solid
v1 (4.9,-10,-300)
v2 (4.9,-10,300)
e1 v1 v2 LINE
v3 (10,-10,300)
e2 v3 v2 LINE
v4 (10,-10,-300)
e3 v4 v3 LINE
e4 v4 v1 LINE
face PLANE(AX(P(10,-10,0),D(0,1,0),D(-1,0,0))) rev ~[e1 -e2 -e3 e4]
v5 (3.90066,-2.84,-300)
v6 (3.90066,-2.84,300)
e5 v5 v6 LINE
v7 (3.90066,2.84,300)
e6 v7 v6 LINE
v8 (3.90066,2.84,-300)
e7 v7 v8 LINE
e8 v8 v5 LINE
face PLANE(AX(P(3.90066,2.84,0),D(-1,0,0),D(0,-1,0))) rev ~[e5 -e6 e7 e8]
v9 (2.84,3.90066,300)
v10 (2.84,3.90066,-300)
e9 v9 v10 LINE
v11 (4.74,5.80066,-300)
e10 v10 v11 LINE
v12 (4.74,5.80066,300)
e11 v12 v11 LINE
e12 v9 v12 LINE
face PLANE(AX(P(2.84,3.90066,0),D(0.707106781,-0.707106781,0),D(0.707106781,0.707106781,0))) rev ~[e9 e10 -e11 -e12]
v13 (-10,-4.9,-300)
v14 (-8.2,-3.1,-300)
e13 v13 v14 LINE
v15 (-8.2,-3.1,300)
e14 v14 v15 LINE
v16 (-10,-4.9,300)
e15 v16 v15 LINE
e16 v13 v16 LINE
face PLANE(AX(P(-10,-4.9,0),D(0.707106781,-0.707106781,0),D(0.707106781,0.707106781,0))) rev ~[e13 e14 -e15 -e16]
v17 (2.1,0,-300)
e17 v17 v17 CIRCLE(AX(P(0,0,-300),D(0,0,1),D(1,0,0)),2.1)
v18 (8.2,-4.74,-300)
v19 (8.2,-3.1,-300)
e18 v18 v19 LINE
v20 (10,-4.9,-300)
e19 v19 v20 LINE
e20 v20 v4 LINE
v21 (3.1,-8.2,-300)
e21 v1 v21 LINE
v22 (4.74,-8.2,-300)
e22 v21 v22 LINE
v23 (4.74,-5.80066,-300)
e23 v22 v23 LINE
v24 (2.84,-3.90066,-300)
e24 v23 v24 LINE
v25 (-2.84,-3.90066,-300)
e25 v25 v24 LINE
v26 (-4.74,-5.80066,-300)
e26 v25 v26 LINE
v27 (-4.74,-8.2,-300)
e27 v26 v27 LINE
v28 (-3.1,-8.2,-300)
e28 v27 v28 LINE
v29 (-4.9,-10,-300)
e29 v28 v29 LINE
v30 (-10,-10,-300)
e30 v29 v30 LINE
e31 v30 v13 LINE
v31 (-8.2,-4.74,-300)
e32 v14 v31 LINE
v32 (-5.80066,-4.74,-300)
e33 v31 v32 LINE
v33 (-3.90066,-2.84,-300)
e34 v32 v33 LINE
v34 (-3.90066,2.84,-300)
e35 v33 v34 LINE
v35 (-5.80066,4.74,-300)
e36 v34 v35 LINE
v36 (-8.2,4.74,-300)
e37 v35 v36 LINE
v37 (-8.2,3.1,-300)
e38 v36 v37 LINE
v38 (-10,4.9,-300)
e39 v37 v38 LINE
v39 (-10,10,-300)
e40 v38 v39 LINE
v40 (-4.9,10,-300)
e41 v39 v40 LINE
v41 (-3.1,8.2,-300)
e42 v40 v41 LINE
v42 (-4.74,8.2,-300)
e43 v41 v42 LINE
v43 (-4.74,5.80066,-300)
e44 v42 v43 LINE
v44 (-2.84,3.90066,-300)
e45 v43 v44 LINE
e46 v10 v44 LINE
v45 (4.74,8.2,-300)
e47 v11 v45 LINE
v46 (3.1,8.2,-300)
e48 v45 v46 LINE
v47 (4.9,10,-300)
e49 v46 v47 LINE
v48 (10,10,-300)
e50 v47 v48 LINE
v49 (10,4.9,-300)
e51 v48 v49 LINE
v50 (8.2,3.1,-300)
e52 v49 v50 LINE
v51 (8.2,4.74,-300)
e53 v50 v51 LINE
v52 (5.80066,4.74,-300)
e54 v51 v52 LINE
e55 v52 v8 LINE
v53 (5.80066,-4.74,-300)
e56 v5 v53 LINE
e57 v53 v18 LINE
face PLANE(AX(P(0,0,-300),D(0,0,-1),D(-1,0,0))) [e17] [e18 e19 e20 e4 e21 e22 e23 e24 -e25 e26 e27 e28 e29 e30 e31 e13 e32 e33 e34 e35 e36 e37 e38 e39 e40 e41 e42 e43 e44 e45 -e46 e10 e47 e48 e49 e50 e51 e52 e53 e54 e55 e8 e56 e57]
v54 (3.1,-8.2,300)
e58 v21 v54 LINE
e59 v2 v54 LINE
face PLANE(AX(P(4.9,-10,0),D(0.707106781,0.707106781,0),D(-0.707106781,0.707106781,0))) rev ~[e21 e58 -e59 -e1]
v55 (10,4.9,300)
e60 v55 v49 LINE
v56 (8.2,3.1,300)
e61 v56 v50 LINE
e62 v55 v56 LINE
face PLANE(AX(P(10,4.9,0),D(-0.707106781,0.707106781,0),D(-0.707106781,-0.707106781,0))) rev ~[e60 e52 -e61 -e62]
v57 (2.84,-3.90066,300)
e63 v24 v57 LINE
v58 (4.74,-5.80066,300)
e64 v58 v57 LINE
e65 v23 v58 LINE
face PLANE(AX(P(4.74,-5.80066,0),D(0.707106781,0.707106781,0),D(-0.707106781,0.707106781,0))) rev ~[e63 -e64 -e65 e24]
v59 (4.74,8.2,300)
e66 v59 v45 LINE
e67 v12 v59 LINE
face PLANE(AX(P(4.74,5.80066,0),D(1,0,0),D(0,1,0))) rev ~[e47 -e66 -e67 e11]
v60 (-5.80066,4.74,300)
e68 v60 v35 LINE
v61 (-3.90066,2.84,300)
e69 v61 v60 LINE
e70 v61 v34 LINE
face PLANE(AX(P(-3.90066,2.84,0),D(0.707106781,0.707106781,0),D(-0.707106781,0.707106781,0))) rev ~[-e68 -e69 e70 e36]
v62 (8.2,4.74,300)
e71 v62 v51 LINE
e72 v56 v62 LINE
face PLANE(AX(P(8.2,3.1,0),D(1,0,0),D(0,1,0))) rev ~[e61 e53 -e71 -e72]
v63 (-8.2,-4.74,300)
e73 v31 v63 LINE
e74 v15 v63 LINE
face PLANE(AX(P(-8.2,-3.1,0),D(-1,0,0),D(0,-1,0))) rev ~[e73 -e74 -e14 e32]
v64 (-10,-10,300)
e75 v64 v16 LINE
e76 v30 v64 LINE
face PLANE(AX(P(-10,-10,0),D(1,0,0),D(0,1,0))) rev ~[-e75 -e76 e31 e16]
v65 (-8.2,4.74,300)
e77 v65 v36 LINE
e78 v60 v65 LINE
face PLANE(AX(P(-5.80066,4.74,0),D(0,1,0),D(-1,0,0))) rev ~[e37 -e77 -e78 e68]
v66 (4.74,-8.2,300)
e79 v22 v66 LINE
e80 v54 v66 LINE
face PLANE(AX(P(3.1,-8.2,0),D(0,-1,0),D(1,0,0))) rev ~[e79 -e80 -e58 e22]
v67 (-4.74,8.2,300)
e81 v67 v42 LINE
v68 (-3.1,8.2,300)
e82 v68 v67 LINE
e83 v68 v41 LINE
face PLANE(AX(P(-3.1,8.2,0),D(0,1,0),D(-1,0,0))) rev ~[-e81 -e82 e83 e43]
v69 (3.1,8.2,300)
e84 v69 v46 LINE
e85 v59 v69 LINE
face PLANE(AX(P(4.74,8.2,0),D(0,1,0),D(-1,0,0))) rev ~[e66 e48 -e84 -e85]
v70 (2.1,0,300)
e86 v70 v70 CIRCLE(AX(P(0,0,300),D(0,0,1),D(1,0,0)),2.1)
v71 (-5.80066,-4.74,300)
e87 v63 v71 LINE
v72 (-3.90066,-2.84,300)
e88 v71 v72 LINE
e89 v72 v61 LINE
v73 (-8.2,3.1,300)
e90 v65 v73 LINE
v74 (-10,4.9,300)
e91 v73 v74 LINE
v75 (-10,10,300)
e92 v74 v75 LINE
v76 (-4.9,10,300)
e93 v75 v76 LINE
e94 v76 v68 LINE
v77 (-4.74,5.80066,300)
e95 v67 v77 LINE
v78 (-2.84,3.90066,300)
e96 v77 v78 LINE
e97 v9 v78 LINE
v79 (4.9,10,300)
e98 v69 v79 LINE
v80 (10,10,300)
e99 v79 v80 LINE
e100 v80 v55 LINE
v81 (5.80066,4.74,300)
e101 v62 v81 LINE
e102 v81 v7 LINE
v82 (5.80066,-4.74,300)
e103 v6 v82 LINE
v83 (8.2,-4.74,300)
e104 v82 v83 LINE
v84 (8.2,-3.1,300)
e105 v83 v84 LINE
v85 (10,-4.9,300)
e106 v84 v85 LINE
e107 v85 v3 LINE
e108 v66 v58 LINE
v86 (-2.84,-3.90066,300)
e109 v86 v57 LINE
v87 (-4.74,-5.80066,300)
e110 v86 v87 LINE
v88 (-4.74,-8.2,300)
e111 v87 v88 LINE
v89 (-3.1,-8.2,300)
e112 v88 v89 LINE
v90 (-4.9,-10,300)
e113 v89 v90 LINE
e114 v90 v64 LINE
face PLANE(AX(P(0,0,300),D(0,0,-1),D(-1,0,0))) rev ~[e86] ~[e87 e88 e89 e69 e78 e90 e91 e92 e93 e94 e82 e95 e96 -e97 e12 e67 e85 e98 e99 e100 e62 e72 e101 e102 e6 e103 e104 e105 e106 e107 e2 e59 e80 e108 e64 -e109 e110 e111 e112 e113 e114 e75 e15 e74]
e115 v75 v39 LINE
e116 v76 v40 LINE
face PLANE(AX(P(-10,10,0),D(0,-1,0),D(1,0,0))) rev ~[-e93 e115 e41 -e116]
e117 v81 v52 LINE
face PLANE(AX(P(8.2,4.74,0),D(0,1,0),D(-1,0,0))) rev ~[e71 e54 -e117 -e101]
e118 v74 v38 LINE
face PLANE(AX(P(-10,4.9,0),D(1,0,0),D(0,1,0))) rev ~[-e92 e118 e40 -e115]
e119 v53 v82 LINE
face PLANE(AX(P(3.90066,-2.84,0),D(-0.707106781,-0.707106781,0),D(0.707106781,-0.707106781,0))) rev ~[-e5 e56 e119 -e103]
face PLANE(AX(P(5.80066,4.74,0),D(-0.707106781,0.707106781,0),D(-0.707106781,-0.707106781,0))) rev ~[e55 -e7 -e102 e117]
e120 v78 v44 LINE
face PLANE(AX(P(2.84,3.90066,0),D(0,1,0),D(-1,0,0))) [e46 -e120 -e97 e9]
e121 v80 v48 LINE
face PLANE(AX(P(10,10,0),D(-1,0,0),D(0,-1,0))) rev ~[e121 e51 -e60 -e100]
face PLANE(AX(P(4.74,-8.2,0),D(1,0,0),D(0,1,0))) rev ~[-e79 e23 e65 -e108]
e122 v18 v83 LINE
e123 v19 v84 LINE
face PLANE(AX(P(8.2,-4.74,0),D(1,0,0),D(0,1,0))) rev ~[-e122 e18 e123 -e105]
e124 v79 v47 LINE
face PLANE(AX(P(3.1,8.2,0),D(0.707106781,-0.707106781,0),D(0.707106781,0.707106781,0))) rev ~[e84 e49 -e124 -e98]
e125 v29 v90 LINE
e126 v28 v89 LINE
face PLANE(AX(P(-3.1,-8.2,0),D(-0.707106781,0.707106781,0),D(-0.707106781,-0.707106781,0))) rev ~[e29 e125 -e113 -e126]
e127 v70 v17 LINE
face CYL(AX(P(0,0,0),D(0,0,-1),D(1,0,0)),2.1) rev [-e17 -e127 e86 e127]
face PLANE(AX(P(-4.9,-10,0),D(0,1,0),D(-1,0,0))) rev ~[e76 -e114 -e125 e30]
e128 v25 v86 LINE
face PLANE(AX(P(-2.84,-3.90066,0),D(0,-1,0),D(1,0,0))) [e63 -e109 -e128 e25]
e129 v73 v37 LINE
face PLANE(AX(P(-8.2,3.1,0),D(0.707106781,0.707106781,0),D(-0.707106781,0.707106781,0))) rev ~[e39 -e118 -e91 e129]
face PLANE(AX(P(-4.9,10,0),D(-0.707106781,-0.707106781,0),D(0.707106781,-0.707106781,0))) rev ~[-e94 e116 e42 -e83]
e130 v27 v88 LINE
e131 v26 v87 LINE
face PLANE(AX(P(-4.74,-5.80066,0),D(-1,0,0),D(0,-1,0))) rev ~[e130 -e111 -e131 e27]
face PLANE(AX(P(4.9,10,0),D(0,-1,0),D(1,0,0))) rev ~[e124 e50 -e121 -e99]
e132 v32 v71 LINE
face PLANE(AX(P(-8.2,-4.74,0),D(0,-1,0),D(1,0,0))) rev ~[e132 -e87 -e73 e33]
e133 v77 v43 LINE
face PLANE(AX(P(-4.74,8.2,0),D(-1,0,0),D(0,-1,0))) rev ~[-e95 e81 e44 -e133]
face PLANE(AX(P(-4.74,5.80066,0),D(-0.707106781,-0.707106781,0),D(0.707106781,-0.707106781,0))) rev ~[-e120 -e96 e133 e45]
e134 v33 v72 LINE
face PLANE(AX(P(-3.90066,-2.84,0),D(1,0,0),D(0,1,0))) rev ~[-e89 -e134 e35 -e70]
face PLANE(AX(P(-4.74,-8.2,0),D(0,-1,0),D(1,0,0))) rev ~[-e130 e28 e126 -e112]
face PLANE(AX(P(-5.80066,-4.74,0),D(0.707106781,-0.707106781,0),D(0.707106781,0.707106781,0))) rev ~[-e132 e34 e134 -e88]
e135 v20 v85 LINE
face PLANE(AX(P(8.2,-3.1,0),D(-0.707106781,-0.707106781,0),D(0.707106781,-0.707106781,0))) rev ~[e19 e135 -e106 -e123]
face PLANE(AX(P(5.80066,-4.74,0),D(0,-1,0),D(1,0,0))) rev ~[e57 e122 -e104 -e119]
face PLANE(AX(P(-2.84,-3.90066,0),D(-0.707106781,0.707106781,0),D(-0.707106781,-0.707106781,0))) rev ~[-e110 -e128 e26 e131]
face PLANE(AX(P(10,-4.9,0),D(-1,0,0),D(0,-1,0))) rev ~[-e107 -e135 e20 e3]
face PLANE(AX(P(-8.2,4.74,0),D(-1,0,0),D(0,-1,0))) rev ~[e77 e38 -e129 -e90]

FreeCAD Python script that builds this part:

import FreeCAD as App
import Part
import Sketcher
from FreeCAD import Vector
Q = App.Units.Quantity


def add_polygon(sketch, points):
    """Adds a closed chain of lines whose ends are joined by coincident constraints."""
    first, n = sketch.GeometryCount, len(points)
    for a, b in zip(points, points[1:] + points[:1]):
        sketch.addGeometry(Part.LineSegment(App.Vector(*a, 0), App.Vector(*b, 0)), False)
    for i in range(n):
        sketch.addConstraint(Sketcher.Constraint("Coincident", first + i, 2, first + (i + 1) % n, 1))

doc = App.newDocument("Part")
body = doc.addObject("PartDesign::Body", "Body")

sketch1 = doc.addObject("Sketcher::SketchObject", "Sketch")
body.addObject(sketch1)
sketch1.AttachmentSupport = (doc.XY_Plane, [""])
sketch1.MapMode = "FlatFace"
add_polygon(sketch1, [(-3.9, 2.8), (-3.9, -2.8), (-5.8, -4.7), (-8.2, -4.7), (-8.2, -3.1), (-10, -4.9), (-10, -10), (-4.9, -10), (-3.1, -8.2), (-4.7, -8.2), (-4.7, -5.8), (-2.8, -3.9), (2.8, -3.9), (4.7, -5.8), (4.7, -8.2), (3.1, -8.2), (4.9, -10), (10, -10), (10, -4.9), (8.2, -3.1), (8.2, -4.7), (5.8, -4.7), (3.9, -2.8), (3.9, 2.8), (5.8, 4.7), (8.2, 4.7), (8.2, 3.1), (10, 4.9), (10, 10), (4.9, 10), (3.1, 8.2), (4.7, 8.2), (4.7, 5.8), (2.8, 3.9), (-2.8, 3.9), (-4.7, 5.8), (-4.7, 8.2), (-3.1, 8.2), (-4.9, 10), (-10, 10), (-10, 4.9), (-8.2, 3.1), (-8.2, 4.7), (-5.8, 4.7)])
sketch1.addGeometry(Part.Circle(Vector(0, 0, 0), Vector(0, 0, 1), 2.1), False)
sketch1.addConstraint(Sketcher.Constraint("Vertical", 0))
sketch1.addConstraint(Sketcher.Constraint("Horizontal", 2))
sketch1.addConstraint(Sketcher.Constraint("Vertical", 3))
sketch1.addConstraint(Sketcher.Constraint("Vertical", 5))
sketch1.addConstraint(Sketcher.Constraint("Horizontal", 6))
sketch1.addConstraint(Sketcher.Constraint("Horizontal", 8))
sketch1.addConstraint(Sketcher.Constraint("Vertical", 9))
sketch1.addConstraint(Sketcher.Constraint("Horizontal", 11))
sketch1.addConstraint(Sketcher.Constraint("Vertical", 13))
sketch1.addConstraint(Sketcher.Constraint("Horizontal", 14))
sketch1.addConstraint(Sketcher.Constraint("Horizontal", 16))
sketch1.addConstraint(Sketcher.Constraint("Vertical", 17))
sketch1.addConstraint(Sketcher.Constraint("Vertical", 19))
sketch1.addConstraint(Sketcher.Constraint("Horizontal", 20))
sketch1.addConstraint(Sketcher.Constraint("Vertical", 22))
sketch1.addConstraint(Sketcher.Constraint("Horizontal", 24))
sketch1.addConstraint(Sketcher.Constraint("Vertical", 25))
sketch1.addConstraint(Sketcher.Constraint("Vertical", 27))
sketch1.addConstraint(Sketcher.Constraint("Horizontal", 28))
sketch1.addConstraint(Sketcher.Constraint("Horizontal", 30))
sketch1.addConstraint(Sketcher.Constraint("Vertical", 31))
sketch1.addConstraint(Sketcher.Constraint("Horizontal", 33))
sketch1.addConstraint(Sketcher.Constraint("Vertical", 35))
sketch1.addConstraint(Sketcher.Constraint("Horizontal", 36))
sketch1.addConstraint(Sketcher.Constraint("Horizontal", 38))
sketch1.addConstraint(Sketcher.Constraint("Vertical", 39))
sketch1.addConstraint(Sketcher.Constraint("Vertical", 41))
sketch1.addConstraint(Sketcher.Constraint("Horizontal", 42))
sketch1.addConstraint(Sketcher.Constraint("Coincident", 44, 3, -1, 1))
sketch1.addConstraint(Sketcher.Constraint("Symmetric", 0, 2, 22, 2, -1, 1))
sketch1.addConstraint(Sketcher.Constraint("Symmetric", 1, 2, 23, 2, -1, 1))
sketch1.addConstraint(Sketcher.Constraint("Symmetric", 3, 2, 25, 2, -1, 1))
sketch1.addConstraint(Sketcher.Constraint("Symmetric", 4, 2, 26, 2, -1, 1))
sketch1.addConstraint(Sketcher.Constraint("Symmetric", 6, 2, 28, 2, -1, 1))
sketch1.addConstraint(Sketcher.Constraint("Symmetric", 7, 2, 29, 2, -1, 1))
sketch1.addConstraint(Sketcher.Constraint("Symmetric", 9, 2, 31, 2, -1, 1))
sketch1.addConstraint(Sketcher.Constraint("Symmetric", 10, 2, 32, 2, -1, 1))
sketch1.addConstraint(Sketcher.Constraint("Symmetric", 12, 2, 34, 2, -1, 1))
sketch1.addConstraint(Sketcher.Constraint("Symmetric", 14, 2, 36, 2, -1, 1))
sketch1.addConstraint(Sketcher.Constraint("Symmetric", 15, 2, 37, 2, -1, 1))
sketch1.addConstraint(Sketcher.Constraint("Symmetric", 17, 2, 39, 2, -1, 1))
sketch1.addConstraint(Sketcher.Constraint("Symmetric", 18, 2, 40, 2, -1, 1))
sketch1.addConstraint(Sketcher.Constraint("Symmetric", 20, 2, 42, 2, -1, 1))
sketch1.addConstraint(Sketcher.Constraint("Symmetric", 9, 2, 12, 2, -2))
sketch1.addConstraint(Sketcher.Constraint("Symmetric", 7, 2, 14, 2, -2))
sketch1.addConstraint(Sketcher.Constraint("Symmetric", 6, 2, 15, 2, -2))
sketch1.addConstraint(Sketcher.Constraint("Symmetric", 4, 2, 17, 2, -2))
sketch1.addConstraint(Sketcher.Constraint("Symmetric", 3, 2, 18, 2, -2))
sketch1.addConstraint(Sketcher.Constraint("Symmetric", 1, 2, 20, 2, -2))
sketch1.addConstraint(Sketcher.Constraint("Parallel", 1, 4))
sketch1.addConstraint(Sketcher.Constraint("Parallel", 4, 7))
sketch1.addConstraint(Sketcher.Constraint("Parallel", 7, 10))
sketch1.addConstraint(Sketcher.Constraint("Perpendicular", 10, 12))
sketch1.addConstraint(Sketcher.Constraint("Parallel", 12, 15))
sketch1.addConstraint(Sketcher.Constraint("Parallel", 18, 21))
sketch1.addConstraint(Sketcher.Constraint("Perpendicular", 32, 34))
sketch1.addConstraint(Sketcher.Constraint("Parallel", 40, 43))
sketch1.addConstraint(Sketcher.Constraint("Equal", 33, 0))
sketch1.addConstraint(Sketcher.Constraint("Equal", 36, 3))
sketch1.addConstraint(Sketcher.Constraint("Equal", 38, 5))
sketch1.addConstraint(Sketcher.Constraint("Equal", 42, 9))
sketch1.addConstraint(Sketcher.Constraint("Equal", 4, 7))
sketch1.addConstraint(Sketcher.Constraint("Equal", 1, 10))
sketch1.addConstraint(Sketcher.Constraint("Diameter", 44, Q("4.2 mm")))
sketch1.addConstraint(Sketcher.Constraint("DistanceX", 6, 1, 6, 2, Q("5.1 mm")))
sketch1.addConstraint(Sketcher.Constraint("DistanceX", 4, 2, -1, 1, Q("10 mm")))
sketch1.addConstraint(Sketcher.Constraint("DistanceX", 7, 2, 15, 2, Q("8 mm")))
sketch1.addConstraint(Sketcher.Constraint("DistanceX", 8, 2, 8, 1, Q("1.64 mm")))
sketch1.addConstraint(Sketcher.Constraint("DistanceX", 11, 1, 11, 2, Q("5.68 mm")))
sketch1.addConstraint(Sketcher.Constraint("DistanceX", 2, 2, 2, 1, Q("2.39934 mm")))
pad1 = doc.addObject("PartDesign::Pad", "Pad")
body.addObject(pad1)
pad1.Profile = sketch1
pad1.Length = 600
pad1.Midplane = True

doc.recompute()
